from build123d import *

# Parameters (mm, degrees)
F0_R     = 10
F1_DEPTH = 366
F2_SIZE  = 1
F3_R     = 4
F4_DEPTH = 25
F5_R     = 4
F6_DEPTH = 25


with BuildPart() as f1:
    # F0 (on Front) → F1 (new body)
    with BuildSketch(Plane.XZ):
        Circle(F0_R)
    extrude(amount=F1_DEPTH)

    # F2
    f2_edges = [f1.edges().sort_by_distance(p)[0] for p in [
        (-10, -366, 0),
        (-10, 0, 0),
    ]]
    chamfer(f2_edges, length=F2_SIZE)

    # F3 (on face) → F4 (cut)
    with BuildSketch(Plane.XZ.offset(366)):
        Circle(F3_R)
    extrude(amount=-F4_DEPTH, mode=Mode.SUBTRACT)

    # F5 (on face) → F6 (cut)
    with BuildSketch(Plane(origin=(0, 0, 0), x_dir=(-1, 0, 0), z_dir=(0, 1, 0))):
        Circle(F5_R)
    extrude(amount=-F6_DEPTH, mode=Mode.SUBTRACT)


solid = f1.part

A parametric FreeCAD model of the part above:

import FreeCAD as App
import Part
import Sketcher
Q = App.Units.Quantity


def edges_at(feature, points):
    """Names of the edges that pass closest to the given points."""
    edges = feature.Shape.Edges
    near = lambda p: min(range(len(edges)), key=lambda i: edges[i].distToShape(Part.Vertex(*p))[0])
    return sorted({f"Edge{near(p) + 1}" for p in points})

doc = App.newDocument("Part")
body = doc.addObject("PartDesign::Body", "Body")

sketch1 = doc.addObject("Sketcher::SketchObject", "Sketch")
body.addObject(sketch1)
sketch1.AttachmentSupport = (doc.XZ_Plane, [""])
sketch1.MapMode = "FlatFace"
sketch1.addGeometry(Part.Circle(App.Vector(0, 0, 0), App.Vector(0, 0, 1), 10), False)
sketch1.addConstraint(Sketcher.Constraint("Coincident", 0, 3, -1, 1))
sketch1.addConstraint(Sketcher.Constraint("Diameter", 0, Q("20 mm")))
pad1 = doc.addObject("PartDesign::Pad", "Pad")
body.addObject(pad1)
pad1.Profile = sketch1
pad1.Length = 366
doc.recompute()

chamfer = doc.addObject("PartDesign::Chamfer", "Chamfer")
body.addObject(chamfer)
chamfer.Base = (pad1, edges_at(pad1, [(-10, -366, 0), (-10, 0, 0)]))
chamfer.Size = 1

sketch2 = doc.addObject("Sketcher::SketchObject", "Sketch001")
body.addObject(sketch2)
sketch2.AttachmentSupport = (doc.XZ_Plane, [""])
sketch2.MapMode = "FlatFace"
sketch2.AttachmentOffset = App.Placement(App.Vector(0, 0, 366), App.Rotation())
sketch2.addGeometry(Part.Circle(App.Vector(0, 0, 0), App.Vector(0, 0, 1), 4), False)
sketch2.addConstraint(Sketcher.Constraint("Coincident", 0, 3, -1, 1))
sketch2.addConstraint(Sketcher.Constraint("Diameter", 0, Q("8 mm")))
pocket1 = doc.addObject("PartDesign::Pocket", "Pocket")
body.addObject(pocket1)
pocket1.Profile = sketch2
pocket1.Length = 25

sketch3 = doc.addObject("Sketcher::SketchObject", "Sketch002")
body.addObject(sketch3)
sketch3.AttachmentSupport = (doc.XZ_Plane, [""])
sketch3.MapMode = "FlatFace"
sketch3.addGeometry(Part.Circle(App.Vector(0, 0, 0), App.Vector(0, 0, 1), 4), False)
sketch3.addConstraint(Sketcher.Constraint("Coincident", 0, 3, -1, 1))
sketch3.addConstraint(Sketcher.Constraint("Diameter", 0, Q("8 mm")))
pocket2 = doc.addObject("PartDesign::Pocket", "Pocket001")
body.addObject(pocket2)
pocket2.Profile = sketch3
pocket2.Length = 25
pocket2.Reversed = True

doc.recompute()
